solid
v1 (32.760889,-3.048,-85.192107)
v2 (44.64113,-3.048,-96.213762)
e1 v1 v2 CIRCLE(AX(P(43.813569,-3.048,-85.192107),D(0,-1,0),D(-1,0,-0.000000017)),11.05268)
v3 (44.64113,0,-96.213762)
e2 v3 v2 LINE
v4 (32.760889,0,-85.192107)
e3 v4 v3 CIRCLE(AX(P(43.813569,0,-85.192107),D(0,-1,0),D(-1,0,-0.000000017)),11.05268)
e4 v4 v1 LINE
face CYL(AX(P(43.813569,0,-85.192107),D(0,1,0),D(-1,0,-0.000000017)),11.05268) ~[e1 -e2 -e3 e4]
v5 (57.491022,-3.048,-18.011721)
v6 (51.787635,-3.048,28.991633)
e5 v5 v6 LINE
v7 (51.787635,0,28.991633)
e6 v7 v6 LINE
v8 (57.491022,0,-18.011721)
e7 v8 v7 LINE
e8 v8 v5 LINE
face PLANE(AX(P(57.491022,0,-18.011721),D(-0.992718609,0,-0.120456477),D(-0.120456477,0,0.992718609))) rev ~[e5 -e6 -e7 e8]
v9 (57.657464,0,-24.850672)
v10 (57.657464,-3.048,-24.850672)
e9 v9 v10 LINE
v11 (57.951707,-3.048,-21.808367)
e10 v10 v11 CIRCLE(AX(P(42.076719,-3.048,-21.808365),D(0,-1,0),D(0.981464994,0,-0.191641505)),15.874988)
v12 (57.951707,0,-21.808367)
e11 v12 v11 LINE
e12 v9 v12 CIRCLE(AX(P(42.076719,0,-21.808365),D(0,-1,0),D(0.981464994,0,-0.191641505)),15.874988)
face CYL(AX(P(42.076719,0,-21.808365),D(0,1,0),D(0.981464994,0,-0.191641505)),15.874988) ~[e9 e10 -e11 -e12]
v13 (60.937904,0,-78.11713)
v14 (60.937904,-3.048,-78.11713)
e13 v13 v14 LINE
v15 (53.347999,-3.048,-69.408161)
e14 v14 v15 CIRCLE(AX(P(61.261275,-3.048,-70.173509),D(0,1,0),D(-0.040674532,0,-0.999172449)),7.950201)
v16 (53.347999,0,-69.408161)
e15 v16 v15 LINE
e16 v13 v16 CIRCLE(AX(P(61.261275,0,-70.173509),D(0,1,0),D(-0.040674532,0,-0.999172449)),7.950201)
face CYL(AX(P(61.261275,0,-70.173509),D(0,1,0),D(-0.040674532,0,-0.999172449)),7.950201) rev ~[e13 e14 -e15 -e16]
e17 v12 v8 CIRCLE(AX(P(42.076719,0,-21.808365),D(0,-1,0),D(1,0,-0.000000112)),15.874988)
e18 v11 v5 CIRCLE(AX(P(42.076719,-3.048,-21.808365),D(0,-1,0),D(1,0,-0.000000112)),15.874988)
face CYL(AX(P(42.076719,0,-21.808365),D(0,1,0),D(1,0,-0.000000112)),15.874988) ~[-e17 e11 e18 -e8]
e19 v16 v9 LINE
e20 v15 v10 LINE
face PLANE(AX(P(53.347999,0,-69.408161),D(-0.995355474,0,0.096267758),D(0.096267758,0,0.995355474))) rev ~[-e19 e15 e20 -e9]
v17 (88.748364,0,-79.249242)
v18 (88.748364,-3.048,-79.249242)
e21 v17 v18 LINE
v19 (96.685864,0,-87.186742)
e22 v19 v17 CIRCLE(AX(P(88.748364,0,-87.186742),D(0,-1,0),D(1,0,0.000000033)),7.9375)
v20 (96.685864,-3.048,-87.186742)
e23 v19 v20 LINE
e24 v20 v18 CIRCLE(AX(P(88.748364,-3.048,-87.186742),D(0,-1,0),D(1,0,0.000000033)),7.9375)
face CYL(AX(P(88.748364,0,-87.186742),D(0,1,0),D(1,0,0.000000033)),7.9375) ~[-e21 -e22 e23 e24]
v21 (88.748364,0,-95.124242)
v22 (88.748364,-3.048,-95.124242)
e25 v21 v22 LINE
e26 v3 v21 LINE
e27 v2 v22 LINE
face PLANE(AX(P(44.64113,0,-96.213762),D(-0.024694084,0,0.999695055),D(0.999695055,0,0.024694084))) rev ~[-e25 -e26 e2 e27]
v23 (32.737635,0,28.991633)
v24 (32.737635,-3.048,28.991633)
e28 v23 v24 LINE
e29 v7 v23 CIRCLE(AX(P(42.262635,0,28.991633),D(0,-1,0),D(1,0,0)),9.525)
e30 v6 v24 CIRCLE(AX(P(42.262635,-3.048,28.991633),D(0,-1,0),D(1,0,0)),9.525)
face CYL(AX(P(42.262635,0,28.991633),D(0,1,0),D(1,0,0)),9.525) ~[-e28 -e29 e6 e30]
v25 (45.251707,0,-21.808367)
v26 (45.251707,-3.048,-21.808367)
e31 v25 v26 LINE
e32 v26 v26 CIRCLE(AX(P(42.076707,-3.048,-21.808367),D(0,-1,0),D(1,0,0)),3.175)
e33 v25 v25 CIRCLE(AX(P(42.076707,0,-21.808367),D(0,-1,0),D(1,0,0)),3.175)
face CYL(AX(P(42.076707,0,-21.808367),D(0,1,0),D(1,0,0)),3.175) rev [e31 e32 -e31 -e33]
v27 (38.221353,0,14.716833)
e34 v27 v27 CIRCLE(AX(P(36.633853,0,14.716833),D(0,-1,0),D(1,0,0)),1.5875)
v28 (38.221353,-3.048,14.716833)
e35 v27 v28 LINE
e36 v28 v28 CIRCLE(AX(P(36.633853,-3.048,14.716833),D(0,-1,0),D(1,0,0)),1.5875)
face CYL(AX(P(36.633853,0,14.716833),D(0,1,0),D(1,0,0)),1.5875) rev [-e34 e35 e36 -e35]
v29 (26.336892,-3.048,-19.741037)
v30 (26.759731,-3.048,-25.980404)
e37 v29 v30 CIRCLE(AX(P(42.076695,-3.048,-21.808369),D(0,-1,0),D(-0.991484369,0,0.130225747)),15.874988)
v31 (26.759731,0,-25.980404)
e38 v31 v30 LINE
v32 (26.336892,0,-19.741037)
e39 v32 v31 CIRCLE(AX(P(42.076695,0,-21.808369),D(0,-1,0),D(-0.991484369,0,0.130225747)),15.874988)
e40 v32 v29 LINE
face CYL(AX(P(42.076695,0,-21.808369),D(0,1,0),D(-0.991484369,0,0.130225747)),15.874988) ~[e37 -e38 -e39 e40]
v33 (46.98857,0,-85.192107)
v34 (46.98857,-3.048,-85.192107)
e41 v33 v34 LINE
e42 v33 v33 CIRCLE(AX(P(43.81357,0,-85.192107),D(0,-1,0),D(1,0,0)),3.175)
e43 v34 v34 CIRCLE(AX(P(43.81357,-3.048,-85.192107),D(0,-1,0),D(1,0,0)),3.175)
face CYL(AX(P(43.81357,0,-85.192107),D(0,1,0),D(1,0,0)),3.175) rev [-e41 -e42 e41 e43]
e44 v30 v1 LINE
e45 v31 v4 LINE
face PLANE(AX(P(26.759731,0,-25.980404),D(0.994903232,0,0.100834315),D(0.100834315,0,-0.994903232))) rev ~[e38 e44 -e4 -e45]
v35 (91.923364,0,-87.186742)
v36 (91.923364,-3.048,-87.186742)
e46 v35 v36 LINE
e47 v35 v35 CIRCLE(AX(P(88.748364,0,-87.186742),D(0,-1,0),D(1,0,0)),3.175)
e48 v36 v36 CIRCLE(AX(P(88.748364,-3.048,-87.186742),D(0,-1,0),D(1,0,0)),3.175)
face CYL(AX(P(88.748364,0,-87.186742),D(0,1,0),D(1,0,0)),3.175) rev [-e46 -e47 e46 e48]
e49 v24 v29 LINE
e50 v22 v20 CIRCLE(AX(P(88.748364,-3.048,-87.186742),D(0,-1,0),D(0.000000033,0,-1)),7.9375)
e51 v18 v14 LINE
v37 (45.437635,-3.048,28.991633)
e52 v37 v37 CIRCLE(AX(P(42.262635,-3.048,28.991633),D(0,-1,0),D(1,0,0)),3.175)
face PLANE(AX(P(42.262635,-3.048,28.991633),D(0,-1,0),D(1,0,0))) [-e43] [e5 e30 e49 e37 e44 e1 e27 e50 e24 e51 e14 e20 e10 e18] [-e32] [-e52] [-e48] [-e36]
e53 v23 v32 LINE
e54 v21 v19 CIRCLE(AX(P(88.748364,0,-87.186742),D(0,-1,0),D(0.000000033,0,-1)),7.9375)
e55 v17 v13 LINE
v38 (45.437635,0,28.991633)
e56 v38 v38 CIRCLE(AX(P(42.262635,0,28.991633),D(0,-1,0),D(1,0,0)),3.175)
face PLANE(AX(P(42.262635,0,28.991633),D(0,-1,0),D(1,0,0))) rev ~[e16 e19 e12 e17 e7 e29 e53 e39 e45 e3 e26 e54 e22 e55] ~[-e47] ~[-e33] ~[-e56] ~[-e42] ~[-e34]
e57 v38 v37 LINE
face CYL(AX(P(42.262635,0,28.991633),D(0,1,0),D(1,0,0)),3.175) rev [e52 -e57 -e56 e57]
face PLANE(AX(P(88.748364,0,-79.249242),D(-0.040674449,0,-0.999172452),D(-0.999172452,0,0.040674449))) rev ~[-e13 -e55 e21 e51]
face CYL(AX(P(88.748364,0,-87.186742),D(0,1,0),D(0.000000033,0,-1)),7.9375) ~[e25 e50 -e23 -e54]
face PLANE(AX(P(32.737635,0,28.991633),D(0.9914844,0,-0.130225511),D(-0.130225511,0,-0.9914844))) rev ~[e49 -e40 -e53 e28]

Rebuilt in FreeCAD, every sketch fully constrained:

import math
import FreeCAD as App
import Part
import Sketcher

V = App.Vector
Q = App.Units.Quantity

doc = App.newDocument("Part")
params = doc.addObject("Spreadsheet::Sheet", "Params")
for row, (alias, value) in enumerate([
    ("sketch1_diameter", "0.25 in"),
    ("sketch1_diameter2", "0.125 in"),
    ("sketch1_radius", "0.375 in"),
    ("sketch1_radius2", "0.3125 in"),
    ("sketch1_radius3", "0.313 in"),
    ("pad1_length", "0.12 in"),
], start=1):
    params.set(f"A{row}", alias)
    params.set(f"B{row}", "=" + value)
    params.setAlias(f"B{row}", alias)

body = doc.addObject("PartDesign::Body", "Body")

# Sketch on XZ plane
sketch1 = body.newObject("Sketcher::SketchObject", "Sketch")
sketch1.AttachmentSupport = (doc.getObject("XZ_Plane"), [""])
sketch1.MapMode = "FlatFace"
sketch1.addGeometry(Part.ArcOfCircle(Part.Circle(V(42.3, 29, 0), V(0, 0, 1), 9.5), math.radians(0), math.radians(180)), False)
sketch1.addGeometry(Part.LineSegment(V(32.7, 29, 0), V(26.3, -19.7, 0)), False)
sketch1.addGeometry(Part.ArcOfCircle(Part.Circle(V(42.1, -21.8, 0), V(0, 0, 1), 15.9), math.radians(173), math.radians(195)), False)
sketch1.addGeometry(Part.LineSegment(V(26.8, -26, 0), V(32.8, -85.2, 0)), False)
sketch1.addGeometry(Part.ArcOfCircle(Part.Circle(V(43.8, -85.2, 0), V(0, 0, 1), 11.1), math.radians(-180), math.radians(-86)), False)
sketch1.addGeometry(Part.LineSegment(V(44.6, -96.2, 0), V(88.7, -95.1, 0)), False)
sketch1.addGeometry(Part.ArcOfCircle(Part.Circle(V(88.7, -87.2, 0), V(0, 0, 1), 7.9), math.radians(-90), math.radians(0)), False)
sketch1.addGeometry(Part.ArcOfCircle(Part.Circle(V(88.7, -87.2, 0), V(0, 0, 1), 7.9), math.radians(0), math.radians(90)), False)
sketch1.addGeometry(Part.LineSegment(V(88.7, -79.2, 0), V(60.9, -78.1, 0)), False)
sketch1.addGeometry(Part.ArcOfCircle(Part.Circle(V(61.3, -70.2, 0), V(0, 0, 1), 8), math.radians(174), math.radians(268)), False)
sketch1.addGeometry(Part.LineSegment(V(53.3, -69.4, 0), V(57.7, -24.9, 0)), False)
sketch1.addGeometry(Part.ArcOfCircle(Part.Circle(V(42.1, -21.8, 0), V(0, 0, 1), 15.9), math.radians(-11.05), math.radians(0)), False)
sketch1.addGeometry(Part.ArcOfCircle(Part.Circle(V(42.1, -21.8, 0), V(0, 0, 1), 15.9), math.radians(0), math.radians(13.84)), False)
sketch1.addGeometry(Part.LineSegment(V(57.5, -18, 0), V(51.8, 29, 0)), False)
sketch1.addGeometry(Part.Circle(V(43.8, -85.2, 0), V(0, 0, 1), 3.2), False)
sketch1.addGeometry(Part.Circle(V(88.7, -87.2, 0), V(0, 0, 1), 3.2), False)
sketch1.addGeometry(Part.Circle(V(42.1, -21.8, 0), V(0, 0, 1), 3.2), False)
sketch1.addGeometry(Part.Circle(V(36.6, 14.7, 0), V(0, 0, 1), 1.6), False)
sketch1.addGeometry(Part.Circle(V(42.3, 29, 0), V(0, 0, 1), 3.2), False)
sketch1.addConstraint(Sketcher.Constraint("Coincident", 0, 2, 1, 1))
sketch1.addConstraint(Sketcher.Constraint("Tangent", 1, 2, 2, 1))
sketch1.addConstraint(Sketcher.Constraint("Coincident", 2, 2, 3, 1))
sketch1.addConstraint(Sketcher.Constraint("Coincident", 3, 2, 4, 1))
sketch1.addConstraint(Sketcher.Constraint("Coincident", 4, 2, 5, 1))
sketch1.addConstraint(Sketcher.Constraint("Coincident", 5, 2, 6, 1))
sketch1.addConstraint(Sketcher.Constraint("Tangent", 6, 2, 7, 1))
sketch1.addConstraint(Sketcher.Constraint("Coincident", 7, 2, 8, 1))
sketch1.addConstraint(Sketcher.Constraint("Tangent", 8, 2, 9, 2))
sketch1.addConstraint(Sketcher.Constraint("Tangent", 9, 1, 10, 1))
sketch1.addConstraint(Sketcher.Constraint("Coincident", 10, 2, 11, 1))
sketch1.addConstraint(Sketcher.Constraint("Tangent", 11, 2, 12, 1))
sketch1.addConstraint(Sketcher.Constraint("Coincident", 12, 2, 13, 1))
sketch1.addConstraint(Sketcher.Constraint("Coincident", 13, 2, 0, 1))
sketch1.addConstraint(Sketcher.Constraint("Coincident", 14, 3, 4, 3))
sketch1.addConstraint(Sketcher.Constraint("Coincident", 15, 3, 6, 3))
sketch1.addConstraint(Sketcher.Constraint("Coincident", 18, 3, 0, 3))
sketch1.addConstraint(Sketcher.Constraint("Equal", 6, 7))
sketch1.addConstraint(Sketcher.Constraint("Equal", 2, 11))
sketch1.addConstraint(Sketcher.Constraint("Equal", 11, 12))
sketch1.addConstraint(Sketcher.Constraint("Equal", 14, 15))
sketch1.addConstraint(Sketcher.Constraint("Equal", 15, 16))
sketch1.addConstraint(Sketcher.Constraint("Equal", 16, 18))
sketch1.addConstraint(Sketcher.Constraint("Horizontal", 12, 3, 16, 3))
sketch1.addConstraint(Sketcher.Constraint("Horizontal", 18, 3, 0, 2))
sketch1.addConstraint(Sketcher.Constraint("Horizontal", 14, 3, 3, 2))
sketch1.addConstraint(Sketcher.Constraint("Horizontal", 15, 3, 6, 2))
sketch1.addConstraint(Sketcher.Constraint("Horizontal", 16, 3, 11, 2))
sketch1.addConstraint(Sketcher.Constraint("Horizontal", 0, 2, 13, 2))
sketch1.addConstraint(Sketcher.Constraint("Vertical", 15, 3, 5, 2))
sketch1.addConstraint(Sketcher.Constraint("Vertical", 5, 2, 7, 2))
sketch1.addConstraint(Sketcher.Constraint("Diameter", 14, Q("0.25 in")))
sketch1.addConstraint(Sketcher.Constraint("Diameter", 17, Q("0.125 in")))
sketch1.addConstraint(Sketcher.Constraint("Radius", 0, Q("0.375 in")))
sketch1.addConstraint(Sketcher.Constraint("Radius", 6, Q("0.3125 in")))
sketch1.addConstraint(Sketcher.Constraint("Radius", 9, Q("0.313 in")))
sketch1.addConstraint(Sketcher.Constraint("DistanceY", 2, 3, 0, 3, Q("2.0000001 in")))
sketch1.addConstraint(Sketcher.Constraint("DistanceY", 11, 3, 0, 3, Q("1.9999999 in")))
sketch1.addConstraint(Sketcher.Constraint("Radius", 2, 15.874988))
sketch1.addConstraint(Sketcher.Constraint("Radius", 4, 11.05268))
sketch1.addConstraint(Sketcher.Constraint("DistanceY", 17, 3, 0, 3, Q("0.562 in")))
sketch1.addConstraint(Sketcher.Constraint("DistanceX", 16, 3, 11, 2, Q("0.625 in")))
sketch1.addConstraint(Sketcher.Constraint("DistanceX", 8, 2, 7, 2, Q("1.0949 in")))
sketch1.addConstraint(Sketcher.Constraint("DistanceX", -1, 1, 9, 1, 53.347999))
sketch1.addConstraint(Sketcher.Constraint("DistanceY", 4, 3, 9, 3, 15.018598))
sketch1.addConstraint(Sketcher.Constraint("Distance", 5, 44.120688))
sketch1.addConstraint(Sketcher.Constraint("DistanceY", 2, 3, -1, 1, 21.808369))
sketch1.addConstraint(Sketcher.Constraint("DistanceX", -1, 1, 4, 3, 43.813569))
sketch1.addConstraint(Sketcher.Constraint("DistanceY", 6, 3, -1, 1, 87.186742))
sketch1.addConstraint(Sketcher.Constraint("DistanceY", 9, 3, -1, 1, 70.173509))
sketch1.addConstraint(Sketcher.Constraint("DistanceX", -1, 1, 11, 3, 42.076719))
sketch1.addConstraint(Sketcher.Constraint("DistanceX", -1, 1, 1, 2, 26.336892))
sketch1.addConstraint(Sketcher.Constraint("DistanceX", -1, 1, 2, 2, 26.759731))
sketch1.addConstraint(Sketcher.Constraint("DistanceY", 9, 1, -1, 1, 69.408161))
sketch1.addConstraint(Sketcher.Constraint("DistanceX", -1, 1, 12, 2, 57.491022))
sketch1.addConstraint(Sketcher.Constraint("DistanceX", 2, 3, 0, 3, 0.18594))
sketch1.addConstraint(Sketcher.Constraint("DistanceX", 17, 3, 2, 3, 5.442842))
sketch1.setExpression("Constraints[31]", "Params.sketch1_diameter")
sketch1.setExpression("Constraints[32]", "Params.sketch1_diameter2")
sketch1.setExpression("Constraints[33]", "Params.sketch1_radius")
sketch1.setExpression("Constraints[34]", "Params.sketch1_radius2")
sketch1.setExpression("Constraints[35]", "Params.sketch1_radius3")
pad1 = body.newObject("PartDesign::Pad", "Pad")
pad1.Profile = sketch1
pad1.setExpression("Length", "Params.pad1_length")

doc.recompute()
